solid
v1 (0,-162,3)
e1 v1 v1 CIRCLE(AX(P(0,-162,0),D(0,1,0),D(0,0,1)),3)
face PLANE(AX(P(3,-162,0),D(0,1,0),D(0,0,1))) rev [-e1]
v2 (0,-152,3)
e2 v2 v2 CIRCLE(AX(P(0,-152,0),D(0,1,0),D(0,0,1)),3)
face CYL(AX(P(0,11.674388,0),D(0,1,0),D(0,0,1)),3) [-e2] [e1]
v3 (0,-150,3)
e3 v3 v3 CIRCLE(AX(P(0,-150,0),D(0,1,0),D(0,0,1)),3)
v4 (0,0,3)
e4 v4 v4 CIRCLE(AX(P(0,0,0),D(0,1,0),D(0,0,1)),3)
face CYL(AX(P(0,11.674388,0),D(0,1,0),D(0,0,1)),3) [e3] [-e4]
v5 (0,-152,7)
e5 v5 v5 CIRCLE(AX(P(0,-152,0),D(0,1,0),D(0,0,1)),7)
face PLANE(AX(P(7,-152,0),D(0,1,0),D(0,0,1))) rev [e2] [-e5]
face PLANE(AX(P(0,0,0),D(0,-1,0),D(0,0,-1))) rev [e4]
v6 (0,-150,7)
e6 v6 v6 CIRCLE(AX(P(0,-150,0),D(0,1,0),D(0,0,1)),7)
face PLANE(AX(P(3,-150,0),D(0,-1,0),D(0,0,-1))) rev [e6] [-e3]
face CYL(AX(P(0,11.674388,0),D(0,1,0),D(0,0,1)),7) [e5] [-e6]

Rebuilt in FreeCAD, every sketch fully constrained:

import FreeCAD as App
import Part
import Sketcher
from FreeCAD import Vector

doc = App.newDocument("Part")
body = doc.addObject("PartDesign::Body", "Body")

# Sketch on XY plane
sketch1 = body.newObject("Sketcher::SketchObject", "Sketch")
sketch1.AttachmentSupport = (doc.getObject("XY_Plane"), [""])
sketch1.MapMode = "FlatFace"
sketch1.addGeometry([
    Part.LineSegment(Vector(3, 0, 0), Vector(0, 0, 0)),  # 0
    Part.LineSegment(Vector(0, 0, 0), Vector(0, -162, 0)),  # 1
    Part.LineSegment(Vector(0, -162, 0), Vector(3, -162, 0)),  # 2
    Part.LineSegment(Vector(3, -162, 0), Vector(3, -152, 0)),  # 3
    Part.LineSegment(Vector(3, -152, 0), Vector(7, -152, 0)),  # 4
    Part.LineSegment(Vector(7, -152, 0), Vector(7, -150, 0)),  # 5
    Part.LineSegment(Vector(7, -150, 0), Vector(3, -150, 0)),  # 6
    Part.LineSegment(Vector(3, -150, 0), Vector(3, 0, 0)),  # 7
], False)
sketch1.addConstraint([
    Sketcher.Constraint("Coincident", 0, 2, 1, 1),
    Sketcher.Constraint("Coincident", 1, 2, 2, 1),
    Sketcher.Constraint("Coincident", 2, 2, 3, 1),
    Sketcher.Constraint("Coincident", 3, 2, 4, 1),
    Sketcher.Constraint("Coincident", 4, 2, 5, 1),
    Sketcher.Constraint("Coincident", 5, 2, 6, 1),
    Sketcher.Constraint("Coincident", 6, 2, 7, 1),
    Sketcher.Constraint("Coincident", 7, 2, 0, 1),
    Sketcher.Constraint("Horizontal", 0),
    Sketcher.Constraint("Vertical", 1),
    Sketcher.Constraint("Horizontal", 2),
    Sketcher.Constraint("Vertical", 3),
    Sketcher.Constraint("Horizontal", 4),
    Sketcher.Constraint("Vertical", 5),
    Sketcher.Constraint("Horizontal", 6),
    Sketcher.Constraint("Vertical", 7),
    Sketcher.Constraint("Coincident", 0, 2, -1, 1),
    Sketcher.Constraint("Vertical", 3, 2, 6, 2),
    Sketcher.Constraint("DistanceX", 0, 2, 0, 1, 3.0),
    Sketcher.Constraint("DistanceX", 4, 1, 4, 2, 4.0),
    Sketcher.Constraint("DistanceY", 1, 2, 1, 1, 162.0),
    Sketcher.Constraint("DistanceY", 3, 1, 3, 2, 10.0),
    Sketcher.Constraint("DistanceY", 5, 1, 5, 2, 2.0),
])
revolution = body.newObject("PartDesign::Revolution", "Revolution")
revolution.Profile = sketch1
revolution.ReferenceAxis = (sketch1, ["V_Axis"])
revolution.Angle = 360

doc.recompute()
